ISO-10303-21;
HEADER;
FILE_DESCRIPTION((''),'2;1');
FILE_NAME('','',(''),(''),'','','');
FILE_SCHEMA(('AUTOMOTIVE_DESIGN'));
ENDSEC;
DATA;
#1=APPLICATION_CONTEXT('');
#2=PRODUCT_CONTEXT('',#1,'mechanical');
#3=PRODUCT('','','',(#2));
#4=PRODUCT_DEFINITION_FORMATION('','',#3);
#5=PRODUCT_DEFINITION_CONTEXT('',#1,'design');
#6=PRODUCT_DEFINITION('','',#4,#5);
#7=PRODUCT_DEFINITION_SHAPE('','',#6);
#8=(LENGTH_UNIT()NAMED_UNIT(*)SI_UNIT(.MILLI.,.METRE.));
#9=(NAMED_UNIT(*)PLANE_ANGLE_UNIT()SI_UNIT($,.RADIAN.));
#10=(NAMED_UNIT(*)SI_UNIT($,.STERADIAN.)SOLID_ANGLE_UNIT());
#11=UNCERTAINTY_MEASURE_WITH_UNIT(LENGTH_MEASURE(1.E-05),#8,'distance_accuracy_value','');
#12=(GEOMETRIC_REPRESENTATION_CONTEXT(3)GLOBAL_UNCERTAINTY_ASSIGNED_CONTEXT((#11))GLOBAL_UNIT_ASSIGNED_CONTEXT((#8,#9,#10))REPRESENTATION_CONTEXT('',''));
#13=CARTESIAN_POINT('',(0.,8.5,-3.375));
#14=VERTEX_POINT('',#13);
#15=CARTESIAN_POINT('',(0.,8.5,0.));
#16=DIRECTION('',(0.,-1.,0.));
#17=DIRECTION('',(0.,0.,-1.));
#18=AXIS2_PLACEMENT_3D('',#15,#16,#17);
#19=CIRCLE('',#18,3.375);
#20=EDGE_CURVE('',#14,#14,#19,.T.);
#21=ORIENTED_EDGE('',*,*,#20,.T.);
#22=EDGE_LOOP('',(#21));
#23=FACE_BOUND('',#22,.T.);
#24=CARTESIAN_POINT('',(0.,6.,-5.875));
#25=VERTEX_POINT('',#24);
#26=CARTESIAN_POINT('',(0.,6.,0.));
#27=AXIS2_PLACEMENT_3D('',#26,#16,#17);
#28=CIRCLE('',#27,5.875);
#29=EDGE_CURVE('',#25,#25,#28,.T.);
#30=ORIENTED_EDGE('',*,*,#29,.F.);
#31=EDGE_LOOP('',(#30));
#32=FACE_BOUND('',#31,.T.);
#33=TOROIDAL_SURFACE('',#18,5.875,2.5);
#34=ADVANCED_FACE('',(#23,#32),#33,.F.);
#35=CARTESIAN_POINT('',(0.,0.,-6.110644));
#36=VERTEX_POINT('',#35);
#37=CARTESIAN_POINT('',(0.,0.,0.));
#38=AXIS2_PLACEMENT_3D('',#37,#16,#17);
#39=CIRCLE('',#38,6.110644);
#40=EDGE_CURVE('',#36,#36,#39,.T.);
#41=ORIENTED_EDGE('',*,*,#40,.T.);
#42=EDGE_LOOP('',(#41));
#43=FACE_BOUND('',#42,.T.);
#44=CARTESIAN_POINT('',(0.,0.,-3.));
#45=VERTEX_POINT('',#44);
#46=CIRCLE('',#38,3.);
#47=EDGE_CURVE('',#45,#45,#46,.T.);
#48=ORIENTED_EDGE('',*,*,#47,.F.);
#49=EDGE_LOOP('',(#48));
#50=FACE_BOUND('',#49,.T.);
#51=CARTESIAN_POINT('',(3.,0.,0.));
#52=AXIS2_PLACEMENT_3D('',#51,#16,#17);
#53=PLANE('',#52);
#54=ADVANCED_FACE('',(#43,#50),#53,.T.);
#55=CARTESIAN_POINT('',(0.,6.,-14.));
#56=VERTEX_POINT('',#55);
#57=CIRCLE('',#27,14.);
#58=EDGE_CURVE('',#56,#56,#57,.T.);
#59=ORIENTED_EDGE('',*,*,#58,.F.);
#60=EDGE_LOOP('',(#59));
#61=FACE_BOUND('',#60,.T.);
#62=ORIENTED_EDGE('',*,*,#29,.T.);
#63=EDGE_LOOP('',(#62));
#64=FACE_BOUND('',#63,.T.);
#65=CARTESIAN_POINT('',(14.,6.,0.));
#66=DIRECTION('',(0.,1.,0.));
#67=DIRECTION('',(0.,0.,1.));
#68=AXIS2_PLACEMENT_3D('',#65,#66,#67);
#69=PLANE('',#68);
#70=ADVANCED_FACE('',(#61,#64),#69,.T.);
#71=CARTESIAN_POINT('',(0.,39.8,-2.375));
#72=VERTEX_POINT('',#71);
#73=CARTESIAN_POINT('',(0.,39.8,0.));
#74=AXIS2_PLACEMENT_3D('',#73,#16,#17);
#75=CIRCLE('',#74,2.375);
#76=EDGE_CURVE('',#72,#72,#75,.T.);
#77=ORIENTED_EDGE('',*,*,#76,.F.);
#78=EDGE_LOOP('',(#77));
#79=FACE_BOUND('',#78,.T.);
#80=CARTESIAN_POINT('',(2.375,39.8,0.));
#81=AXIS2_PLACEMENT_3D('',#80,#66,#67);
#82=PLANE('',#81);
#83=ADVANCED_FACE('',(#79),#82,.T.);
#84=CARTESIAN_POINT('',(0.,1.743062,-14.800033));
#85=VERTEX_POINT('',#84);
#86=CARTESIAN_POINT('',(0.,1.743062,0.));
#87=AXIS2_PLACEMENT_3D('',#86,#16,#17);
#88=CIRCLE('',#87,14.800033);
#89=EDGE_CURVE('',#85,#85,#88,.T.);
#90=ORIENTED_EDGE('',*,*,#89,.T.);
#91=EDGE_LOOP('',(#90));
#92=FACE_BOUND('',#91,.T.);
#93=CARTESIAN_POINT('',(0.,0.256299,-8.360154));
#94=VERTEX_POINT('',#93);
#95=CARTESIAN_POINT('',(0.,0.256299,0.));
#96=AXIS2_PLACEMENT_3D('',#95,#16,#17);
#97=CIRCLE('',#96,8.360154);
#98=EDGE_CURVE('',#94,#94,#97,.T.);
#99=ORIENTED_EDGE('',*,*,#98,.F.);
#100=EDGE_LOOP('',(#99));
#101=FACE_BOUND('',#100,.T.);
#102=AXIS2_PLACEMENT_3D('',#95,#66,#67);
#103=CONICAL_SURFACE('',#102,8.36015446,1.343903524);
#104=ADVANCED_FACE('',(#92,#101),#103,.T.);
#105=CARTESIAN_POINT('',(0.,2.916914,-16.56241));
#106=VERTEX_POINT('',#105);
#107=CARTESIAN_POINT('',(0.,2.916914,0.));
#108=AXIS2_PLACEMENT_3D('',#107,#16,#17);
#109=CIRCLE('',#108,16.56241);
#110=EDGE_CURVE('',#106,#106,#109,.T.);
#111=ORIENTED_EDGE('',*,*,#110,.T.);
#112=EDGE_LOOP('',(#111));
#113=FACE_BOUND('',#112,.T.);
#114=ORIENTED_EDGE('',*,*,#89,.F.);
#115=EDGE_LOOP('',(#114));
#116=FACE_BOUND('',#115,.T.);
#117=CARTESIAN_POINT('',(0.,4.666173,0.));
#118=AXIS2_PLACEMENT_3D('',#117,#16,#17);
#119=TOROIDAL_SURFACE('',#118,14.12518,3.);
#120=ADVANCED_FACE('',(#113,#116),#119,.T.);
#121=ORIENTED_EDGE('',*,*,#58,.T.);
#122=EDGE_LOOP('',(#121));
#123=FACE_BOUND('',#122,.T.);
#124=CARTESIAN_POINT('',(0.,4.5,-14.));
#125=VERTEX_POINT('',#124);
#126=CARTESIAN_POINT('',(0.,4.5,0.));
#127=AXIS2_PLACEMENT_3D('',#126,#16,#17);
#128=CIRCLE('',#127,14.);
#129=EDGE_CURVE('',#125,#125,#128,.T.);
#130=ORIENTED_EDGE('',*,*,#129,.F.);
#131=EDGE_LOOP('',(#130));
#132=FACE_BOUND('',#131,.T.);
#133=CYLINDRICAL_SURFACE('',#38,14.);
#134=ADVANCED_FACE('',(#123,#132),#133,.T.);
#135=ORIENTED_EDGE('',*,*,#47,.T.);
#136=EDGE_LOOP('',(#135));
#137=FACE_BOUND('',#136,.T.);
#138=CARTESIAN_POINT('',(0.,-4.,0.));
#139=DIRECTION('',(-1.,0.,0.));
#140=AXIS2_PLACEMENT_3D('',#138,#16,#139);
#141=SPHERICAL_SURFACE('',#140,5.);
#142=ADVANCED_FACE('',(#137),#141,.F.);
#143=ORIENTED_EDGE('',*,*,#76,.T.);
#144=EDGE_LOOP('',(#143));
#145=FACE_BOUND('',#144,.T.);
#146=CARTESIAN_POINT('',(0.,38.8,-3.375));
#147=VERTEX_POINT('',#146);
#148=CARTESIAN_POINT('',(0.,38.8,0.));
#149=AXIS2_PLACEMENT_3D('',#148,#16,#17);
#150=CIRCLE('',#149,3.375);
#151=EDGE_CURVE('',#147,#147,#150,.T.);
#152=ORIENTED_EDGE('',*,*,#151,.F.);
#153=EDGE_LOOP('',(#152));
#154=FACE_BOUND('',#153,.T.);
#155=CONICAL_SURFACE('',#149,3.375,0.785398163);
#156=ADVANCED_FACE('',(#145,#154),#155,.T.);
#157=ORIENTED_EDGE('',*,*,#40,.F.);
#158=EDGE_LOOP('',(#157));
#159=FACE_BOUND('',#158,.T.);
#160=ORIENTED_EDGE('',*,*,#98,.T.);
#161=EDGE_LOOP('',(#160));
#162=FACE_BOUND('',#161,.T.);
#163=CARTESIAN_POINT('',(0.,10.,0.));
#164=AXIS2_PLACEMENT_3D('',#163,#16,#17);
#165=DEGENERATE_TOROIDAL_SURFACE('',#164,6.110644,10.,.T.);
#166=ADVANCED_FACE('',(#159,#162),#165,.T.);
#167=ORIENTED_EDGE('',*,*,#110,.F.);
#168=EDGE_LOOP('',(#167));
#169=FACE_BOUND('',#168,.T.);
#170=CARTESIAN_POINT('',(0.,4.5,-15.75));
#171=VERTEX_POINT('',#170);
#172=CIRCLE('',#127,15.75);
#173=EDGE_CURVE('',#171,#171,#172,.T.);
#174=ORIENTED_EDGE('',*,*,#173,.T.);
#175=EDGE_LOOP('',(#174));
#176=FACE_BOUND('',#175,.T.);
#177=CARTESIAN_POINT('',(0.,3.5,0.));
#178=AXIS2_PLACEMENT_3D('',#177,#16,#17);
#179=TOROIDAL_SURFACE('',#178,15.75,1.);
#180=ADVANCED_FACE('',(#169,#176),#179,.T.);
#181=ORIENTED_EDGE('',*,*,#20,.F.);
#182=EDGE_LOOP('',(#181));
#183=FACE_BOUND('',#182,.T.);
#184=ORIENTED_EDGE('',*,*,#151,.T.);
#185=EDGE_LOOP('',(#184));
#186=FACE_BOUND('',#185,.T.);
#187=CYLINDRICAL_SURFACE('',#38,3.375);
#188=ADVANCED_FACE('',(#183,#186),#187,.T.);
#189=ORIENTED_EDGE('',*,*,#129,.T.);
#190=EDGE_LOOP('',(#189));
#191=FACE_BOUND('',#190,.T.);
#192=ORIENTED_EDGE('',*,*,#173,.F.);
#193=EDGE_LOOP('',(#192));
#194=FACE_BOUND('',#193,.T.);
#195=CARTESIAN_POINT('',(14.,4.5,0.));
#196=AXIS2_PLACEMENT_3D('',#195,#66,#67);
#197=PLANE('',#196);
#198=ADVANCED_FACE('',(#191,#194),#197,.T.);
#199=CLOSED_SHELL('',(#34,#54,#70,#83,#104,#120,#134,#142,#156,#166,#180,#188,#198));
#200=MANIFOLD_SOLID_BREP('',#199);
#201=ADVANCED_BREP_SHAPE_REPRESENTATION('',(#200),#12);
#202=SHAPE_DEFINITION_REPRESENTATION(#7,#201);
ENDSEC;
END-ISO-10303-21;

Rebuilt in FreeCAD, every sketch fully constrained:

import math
import FreeCAD as App
import Part
import Sketcher

V = App.Vector
Q = App.Units.Quantity

doc = App.newDocument("Part")
params = doc.addObject("Spreadsheet::Sheet", "Params")
for row, (alias, value) in enumerate([
    ("sketch1_radius", "10 mm"),
    ("sketch1_radius2", "3 mm"),
    ("sketch1_radius3", "1 mm"),
    ("sketch1_radius4", "5 mm"),
    ("sketch1_radius5", "2.5 mm"),
    ("revolution_angle", "360 deg"),
], start=1):
    params.set(f"A{row}", alias)
    params.set(f"B{row}", "=" + value)
    params.setAlias(f"B{row}", alias)

body = doc.addObject("PartDesign::Body", "Body")

# Sketch on XY plane
sketch1 = body.newObject("Sketcher::SketchObject", "Sketch")
sketch1.AttachmentSupport = (doc.getObject("XY_Plane"), [""])
sketch1.MapMode = "FlatFace"
sketch1.addGeometry([
    Part.LineSegment(V(3, 0, 0), V(6.110644, 0, 0)),  # 0
    Part.ArcOfCircle(Part.Circle(V(6.110644, 10, 0), V(0, 0, 1), 10), math.radians(-90), math.radians(-77)),  # 1
    Part.LineSegment(V(8.360154, 0.256299, 0), V(14.800033, 1.743062, 0)),  # 2
    Part.ArcOfCircle(Part.Circle(V(14.12518, 4.666173, 0), V(0, 0, 1), 3), math.radians(-77), math.radians(-35.66791)),  # 3
    Part.ArcOfCircle(Part.Circle(V(15.75, 3.5, 0), V(0, 0, 1), 1), math.radians(-35.66791), math.radians(90)),  # 4
    Part.LineSegment(V(15.75, 4.5, 0), V(14, 4.5, 0)),  # 5
    Part.LineSegment(V(14, 4.5, 0), V(14, 6, 0)),  # 6
    Part.LineSegment(V(14, 6, 0), V(5.875, 6, 0)),  # 7
    Part.ArcOfCircle(Part.Circle(V(5.875, 8.5, 0), V(0, 0, 1), 2.5), math.radians(180), math.radians(270)),  # 8
    Part.LineSegment(V(3.375, 8.5, 0), V(3.375, 38.8, 0)),  # 9
    Part.LineSegment(V(3.375, 38.8, 0), V(2.375, 39.8, 0)),  # 10
    Part.LineSegment(V(2.375, 39.8, 0), V(0, 39.8, 0)),  # 11
    Part.LineSegment(V(0, 39.8, 0), V(0, 1, 0)),  # 12
    Part.ArcOfCircle(Part.Circle(V(0, -4, 0), V(0, 0, 1), 5), math.radians(53.130102), math.radians(90)),  # 13
], False)
sketch1.addConstraint([
    Sketcher.Constraint("Tangent", 0, 2, 1, 1),
    Sketcher.Constraint("Tangent", 1, 2, 2, 1),
    Sketcher.Constraint("Tangent", 2, 2, 3, 1),
    Sketcher.Constraint("Tangent", 3, 2, 4, 1),
    Sketcher.Constraint("Tangent", 4, 2, 5, 1),
    Sketcher.Constraint("Coincident", 5, 2, 6, 1),
    Sketcher.Constraint("Coincident", 6, 2, 7, 1),
    Sketcher.Constraint("Tangent", 7, 2, 8, 2),
    Sketcher.Constraint("Tangent", 8, 1, 9, 1),
    Sketcher.Constraint("Coincident", 9, 2, 10, 1),
    Sketcher.Constraint("Coincident", 10, 2, 11, 1),
    Sketcher.Constraint("Coincident", 11, 2, 12, 1),
    Sketcher.Constraint("Coincident", 12, 2, 13, 2),
    Sketcher.Constraint("Coincident", 13, 1, 0, 1),
    Sketcher.Constraint("Horizontal", 0),
    Sketcher.Constraint("Horizontal", 5),
    Sketcher.Constraint("Vertical", 6),
    Sketcher.Constraint("Horizontal", 7),
    Sketcher.Constraint("Vertical", 9),
    Sketcher.Constraint("Horizontal", 11),
    Sketcher.Constraint("Vertical", 12),
    Sketcher.Constraint("PointOnObject", 13, 3, -2),
    Sketcher.Constraint("PointOnObject", 0, 2, -1),
    Sketcher.Constraint("PointOnObject", 11, 2, -2),
    Sketcher.Constraint("Radius", 1, 10.0),
    Sketcher.Constraint("Radius", 3, 3.0),
    Sketcher.Constraint("Radius", 4, 1.0),
    Sketcher.Constraint("Radius", 13, 5.0),
    Sketcher.Constraint("Radius", 8, 2.5),
    Sketcher.Constraint("Angle", 2, Q("13 deg")),
    Sketcher.Constraint("Angle", 10, Q("135 deg")),
    Sketcher.Constraint("DistanceY", 6, 1, 6, 2, 1.5),
    Sketcher.Constraint("DistanceY", 9, 1, 9, 2, 30.3),
    Sketcher.Constraint("DistanceY", 12, 2, 12, 1, 38.8),
    Sketcher.Constraint("DistanceY", 13, 3, -1, 1, 4.0),
    Sketcher.Constraint("DistanceX", -1, 1, 5, 2, 14.0),
    Sketcher.Constraint("DistanceY", -1, 1, 6, 2, 6.0),
    Sketcher.Constraint("DistanceX", 5, 2, 5, 1, 1.75),
    Sketcher.Constraint("DistanceX", 7, 2, 7, 1, 8.125),
    Sketcher.Constraint("DistanceX", 0, 1, 0, 2, 3.110644),
])
sketch1.setExpression("Constraints[24]", "Params.sketch1_radius")
sketch1.setExpression("Constraints[25]", "Params.sketch1_radius2")
sketch1.setExpression("Constraints[26]", "Params.sketch1_radius3")
sketch1.setExpression("Constraints[27]", "Params.sketch1_radius4")
sketch1.setExpression("Constraints[28]", "Params.sketch1_radius5")
revolution = body.newObject("PartDesign::Revolution", "Revolution")
revolution.Profile = sketch1
revolution.ReferenceAxis = (sketch1, ["V_Axis"])
revolution.setExpression("Angle", "Params.revolution_angle")

doc.recompute()
